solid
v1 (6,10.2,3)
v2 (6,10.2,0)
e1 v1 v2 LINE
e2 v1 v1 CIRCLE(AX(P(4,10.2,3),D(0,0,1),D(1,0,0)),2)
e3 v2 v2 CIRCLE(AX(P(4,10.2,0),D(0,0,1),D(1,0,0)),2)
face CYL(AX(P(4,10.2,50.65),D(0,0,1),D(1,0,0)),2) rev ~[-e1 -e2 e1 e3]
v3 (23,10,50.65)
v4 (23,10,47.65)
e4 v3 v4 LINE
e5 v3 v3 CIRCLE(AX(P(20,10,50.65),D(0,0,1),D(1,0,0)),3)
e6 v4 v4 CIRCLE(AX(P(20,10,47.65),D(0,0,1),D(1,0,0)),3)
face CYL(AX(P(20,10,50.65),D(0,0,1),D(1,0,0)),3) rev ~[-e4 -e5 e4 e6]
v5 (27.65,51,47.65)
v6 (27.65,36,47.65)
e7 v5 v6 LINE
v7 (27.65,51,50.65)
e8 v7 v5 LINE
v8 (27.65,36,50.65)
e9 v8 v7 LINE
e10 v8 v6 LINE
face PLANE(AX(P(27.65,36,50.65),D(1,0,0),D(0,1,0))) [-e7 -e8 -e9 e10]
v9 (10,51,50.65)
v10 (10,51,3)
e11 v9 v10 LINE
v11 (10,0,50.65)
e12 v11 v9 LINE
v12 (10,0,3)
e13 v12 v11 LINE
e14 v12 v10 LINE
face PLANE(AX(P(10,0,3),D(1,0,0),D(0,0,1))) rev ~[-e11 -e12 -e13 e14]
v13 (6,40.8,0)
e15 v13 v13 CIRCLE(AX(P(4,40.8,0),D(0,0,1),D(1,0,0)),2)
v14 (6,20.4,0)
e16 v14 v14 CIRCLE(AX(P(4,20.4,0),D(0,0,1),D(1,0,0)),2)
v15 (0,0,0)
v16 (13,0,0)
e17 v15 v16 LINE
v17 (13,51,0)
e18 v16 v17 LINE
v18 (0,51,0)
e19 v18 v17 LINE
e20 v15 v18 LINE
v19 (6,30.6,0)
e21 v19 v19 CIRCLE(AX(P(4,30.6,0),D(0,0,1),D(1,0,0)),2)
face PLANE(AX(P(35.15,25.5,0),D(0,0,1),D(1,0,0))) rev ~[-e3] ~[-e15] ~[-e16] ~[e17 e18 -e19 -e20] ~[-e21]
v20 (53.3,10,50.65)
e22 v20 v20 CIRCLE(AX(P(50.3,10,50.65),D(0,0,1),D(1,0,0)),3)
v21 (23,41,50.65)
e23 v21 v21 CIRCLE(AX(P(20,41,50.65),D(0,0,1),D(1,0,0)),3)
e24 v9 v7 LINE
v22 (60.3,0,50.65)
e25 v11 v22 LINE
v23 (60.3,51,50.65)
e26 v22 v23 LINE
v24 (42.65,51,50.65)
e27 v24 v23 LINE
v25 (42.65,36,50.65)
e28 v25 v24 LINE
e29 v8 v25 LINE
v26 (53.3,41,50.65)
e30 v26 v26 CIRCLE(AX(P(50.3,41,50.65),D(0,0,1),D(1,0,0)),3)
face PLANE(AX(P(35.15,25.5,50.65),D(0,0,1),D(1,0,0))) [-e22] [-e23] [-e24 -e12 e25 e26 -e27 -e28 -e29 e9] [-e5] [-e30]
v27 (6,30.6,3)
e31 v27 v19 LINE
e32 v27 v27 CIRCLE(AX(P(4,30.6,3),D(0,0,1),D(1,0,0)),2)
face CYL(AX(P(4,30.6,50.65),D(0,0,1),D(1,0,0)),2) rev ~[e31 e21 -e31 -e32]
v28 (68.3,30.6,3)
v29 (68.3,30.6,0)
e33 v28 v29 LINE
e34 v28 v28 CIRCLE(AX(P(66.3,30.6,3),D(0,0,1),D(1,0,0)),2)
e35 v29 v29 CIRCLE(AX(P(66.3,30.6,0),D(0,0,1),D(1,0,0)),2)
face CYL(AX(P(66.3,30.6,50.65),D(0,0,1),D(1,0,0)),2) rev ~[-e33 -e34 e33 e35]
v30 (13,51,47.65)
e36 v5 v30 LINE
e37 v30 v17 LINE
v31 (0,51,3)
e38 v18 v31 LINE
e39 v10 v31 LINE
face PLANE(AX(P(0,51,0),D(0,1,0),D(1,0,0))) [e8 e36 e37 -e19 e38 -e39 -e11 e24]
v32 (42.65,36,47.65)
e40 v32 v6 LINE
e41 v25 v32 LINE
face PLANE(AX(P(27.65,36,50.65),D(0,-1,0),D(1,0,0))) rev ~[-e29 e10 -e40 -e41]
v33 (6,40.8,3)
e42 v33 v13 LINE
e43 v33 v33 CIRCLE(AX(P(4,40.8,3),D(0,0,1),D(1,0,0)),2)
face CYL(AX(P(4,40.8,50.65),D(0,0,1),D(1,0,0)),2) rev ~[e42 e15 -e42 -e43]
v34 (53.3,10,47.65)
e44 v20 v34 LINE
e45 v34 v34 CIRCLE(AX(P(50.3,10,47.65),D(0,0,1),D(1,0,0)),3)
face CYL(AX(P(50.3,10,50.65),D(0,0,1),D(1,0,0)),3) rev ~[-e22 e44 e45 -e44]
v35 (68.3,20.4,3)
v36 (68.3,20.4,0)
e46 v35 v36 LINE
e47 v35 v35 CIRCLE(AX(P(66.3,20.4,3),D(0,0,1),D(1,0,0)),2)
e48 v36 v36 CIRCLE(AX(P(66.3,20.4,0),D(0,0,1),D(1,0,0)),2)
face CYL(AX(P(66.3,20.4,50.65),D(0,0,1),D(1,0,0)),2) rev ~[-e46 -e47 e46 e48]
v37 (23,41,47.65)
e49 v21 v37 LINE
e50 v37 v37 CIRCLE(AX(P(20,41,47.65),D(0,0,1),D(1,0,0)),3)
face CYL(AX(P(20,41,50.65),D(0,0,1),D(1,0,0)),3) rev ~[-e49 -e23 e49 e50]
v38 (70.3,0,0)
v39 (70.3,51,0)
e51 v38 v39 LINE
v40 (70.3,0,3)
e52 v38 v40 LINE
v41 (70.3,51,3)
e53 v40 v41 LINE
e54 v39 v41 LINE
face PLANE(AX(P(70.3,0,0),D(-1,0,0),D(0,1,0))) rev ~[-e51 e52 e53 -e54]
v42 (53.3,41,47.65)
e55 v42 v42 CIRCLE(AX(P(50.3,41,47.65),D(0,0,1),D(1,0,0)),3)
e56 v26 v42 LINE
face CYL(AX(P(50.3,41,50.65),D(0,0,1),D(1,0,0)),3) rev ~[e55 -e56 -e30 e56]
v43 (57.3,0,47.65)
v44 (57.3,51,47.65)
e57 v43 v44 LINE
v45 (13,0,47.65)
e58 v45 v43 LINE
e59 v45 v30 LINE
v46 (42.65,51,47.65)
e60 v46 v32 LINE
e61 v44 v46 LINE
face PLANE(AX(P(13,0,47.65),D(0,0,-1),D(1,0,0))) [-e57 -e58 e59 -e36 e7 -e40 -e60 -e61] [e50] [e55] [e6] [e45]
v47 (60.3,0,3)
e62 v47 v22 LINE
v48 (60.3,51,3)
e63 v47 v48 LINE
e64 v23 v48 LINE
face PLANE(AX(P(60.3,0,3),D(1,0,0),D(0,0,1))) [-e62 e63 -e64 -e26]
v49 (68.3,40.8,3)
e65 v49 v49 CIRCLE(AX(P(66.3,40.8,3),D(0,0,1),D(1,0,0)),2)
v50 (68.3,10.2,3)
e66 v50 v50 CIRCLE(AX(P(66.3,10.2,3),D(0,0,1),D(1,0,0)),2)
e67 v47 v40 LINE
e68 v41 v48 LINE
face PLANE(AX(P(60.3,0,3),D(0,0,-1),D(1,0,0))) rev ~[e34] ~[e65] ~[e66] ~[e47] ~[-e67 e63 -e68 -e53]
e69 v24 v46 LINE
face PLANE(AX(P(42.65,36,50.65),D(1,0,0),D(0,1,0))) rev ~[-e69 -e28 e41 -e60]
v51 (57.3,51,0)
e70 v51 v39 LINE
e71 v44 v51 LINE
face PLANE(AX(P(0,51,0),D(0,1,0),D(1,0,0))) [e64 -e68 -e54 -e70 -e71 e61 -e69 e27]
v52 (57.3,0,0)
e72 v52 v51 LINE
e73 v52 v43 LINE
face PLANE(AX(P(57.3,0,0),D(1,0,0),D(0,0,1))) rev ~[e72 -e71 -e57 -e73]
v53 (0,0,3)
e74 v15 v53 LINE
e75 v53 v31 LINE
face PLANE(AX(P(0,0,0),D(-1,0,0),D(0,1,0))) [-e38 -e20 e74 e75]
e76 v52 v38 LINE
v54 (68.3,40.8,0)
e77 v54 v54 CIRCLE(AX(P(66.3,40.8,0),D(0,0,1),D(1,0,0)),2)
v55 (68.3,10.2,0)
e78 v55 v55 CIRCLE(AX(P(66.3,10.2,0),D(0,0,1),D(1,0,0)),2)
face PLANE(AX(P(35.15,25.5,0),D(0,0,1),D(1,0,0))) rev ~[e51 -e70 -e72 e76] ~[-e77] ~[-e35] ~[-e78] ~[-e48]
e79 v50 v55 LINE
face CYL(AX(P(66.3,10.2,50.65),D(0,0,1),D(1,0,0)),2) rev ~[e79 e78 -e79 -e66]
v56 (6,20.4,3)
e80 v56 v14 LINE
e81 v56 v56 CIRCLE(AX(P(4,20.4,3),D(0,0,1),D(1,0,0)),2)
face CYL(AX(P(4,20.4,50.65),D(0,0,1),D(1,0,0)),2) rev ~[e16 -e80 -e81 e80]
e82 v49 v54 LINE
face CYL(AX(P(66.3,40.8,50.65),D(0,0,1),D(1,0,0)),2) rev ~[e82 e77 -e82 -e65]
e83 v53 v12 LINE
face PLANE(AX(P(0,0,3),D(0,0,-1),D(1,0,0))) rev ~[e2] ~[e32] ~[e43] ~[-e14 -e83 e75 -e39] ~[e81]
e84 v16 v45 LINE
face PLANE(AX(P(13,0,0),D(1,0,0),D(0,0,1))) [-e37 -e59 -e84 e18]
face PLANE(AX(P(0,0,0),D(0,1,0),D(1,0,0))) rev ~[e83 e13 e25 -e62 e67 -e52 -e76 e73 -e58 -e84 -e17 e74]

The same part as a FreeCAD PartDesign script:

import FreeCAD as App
import Part
import Sketcher
from FreeCAD import Vector


def add_polygon(sketch, points):
    """Adds a closed chain of lines whose ends are joined by coincident constraints."""
    first, n = sketch.GeometryCount, len(points)
    for a, b in zip(points, points[1:] + points[:1]):
        sketch.addGeometry(Part.LineSegment(App.Vector(*a, 0), App.Vector(*b, 0)), False)
    for i in range(n):
        sketch.addConstraint(Sketcher.Constraint("Coincident", first + i, 2, first + (i + 1) % n, 1))

doc = App.newDocument("Part")
body = doc.addObject("PartDesign::Body", "Body")

sketch1 = doc.addObject("Sketcher::SketchObject", "Sketch")
body.addObject(sketch1)
sketch1.AttachmentSupport = (doc.XY_Plane, [""])
sketch1.MapMode = "FlatFace"
add_polygon(sketch1, [(0, 51), (0, 0), (70, 0), (70, 51)])
sketch1.addConstraint([
    Sketcher.Constraint("Vertical", 0),
    Sketcher.Constraint("Horizontal", 1),
    Sketcher.Constraint("Vertical", 2),
    Sketcher.Constraint("Horizontal", 3),
    Sketcher.Constraint("Coincident", 0, 2, -1, 1),
    Sketcher.Constraint("DistanceY", 0, 2, 0, 1, 51.0),
    Sketcher.Constraint("DistanceX", 1, 1, 1, 2, 70.3),
])
pad1 = doc.addObject("PartDesign::Pad", "Pad")
body.addObject(pad1)
pad1.Profile = sketch1
pad1.Length = 50.65

sketch2 = doc.addObject("Sketcher::SketchObject", "Sketch001")
body.addObject(sketch2)
sketch2.AttachmentSupport = (doc.XZ_Plane, [""])
sketch2.MapMode = "FlatFace"
add_polygon(sketch2, [(13, 48), (13, 0), (57, 0), (57, 48)])
add_polygon(sketch2, [(0, 51), (0, 3), (10, 3), (10, 51)])
add_polygon(sketch2, [(60, 51), (60, 3), (70, 3), (70, 51)])
sketch2.addConstraint([
    Sketcher.Constraint("Vertical", 0),
    Sketcher.Constraint("Horizontal", 1),
    Sketcher.Constraint("Vertical", 2),
    Sketcher.Constraint("Horizontal", 3),
    Sketcher.Constraint("Vertical", 4),
    Sketcher.Constraint("Horizontal", 5),
    Sketcher.Constraint("Vertical", 6),
    Sketcher.Constraint("Horizontal", 7),
    Sketcher.Constraint("Vertical", 8),
    Sketcher.Constraint("Horizontal", 9),
    Sketcher.Constraint("Vertical", 10),
    Sketcher.Constraint("Horizontal", 11),
    Sketcher.Constraint("PointOnObject", 0, 2, -1),
    Sketcher.Constraint("PointOnObject", 4, 2, -2),
    Sketcher.Constraint("Horizontal", 5, 2, 8, 2),
    Sketcher.Constraint("Horizontal", 7, 2, 10, 2),
    Sketcher.Constraint("Equal", 7, 9),
    Sketcher.Constraint("Equal", 2, 4),
    Sketcher.Constraint("DistanceX", 5, 1, 5, 2, 10.0),
    Sketcher.Constraint("DistanceX", 1, 1, 1, 2, 44.3),
    Sketcher.Constraint("DistanceX", -1, 1, 0, 2, 13.0),
    Sketcher.Constraint("DistanceY", -1, 1, 4, 2, 3.0),
    Sketcher.Constraint("DistanceX", 1, 2, 8, 2, 3.0),
    Sketcher.Constraint("DistanceY", 0, 2, 0, 1, 47.65),
])
pocket1 = doc.addObject("PartDesign::Pocket", "Pocket")
body.addObject(pocket1)
pocket1.Profile = sketch2
pocket1.Type = "ThroughAll"

sketch3 = doc.addObject("Sketcher::SketchObject", "Sketch002")
body.addObject(sketch3)
sketch3.AttachmentSupport = (doc.XY_Plane, [""])
sketch3.MapMode = "FlatFace"
sketch3.AttachmentOffset = App.Placement(Vector(0, 0, 50.65), App.Rotation())
sketch3.addGeometry(Part.Circle(Vector(20, 41, 0), Vector(0, 0, 1), 3), False)
sketch3.addGeometry(Part.Circle(Vector(50.3, 41, 0), Vector(0, 0, 1), 3), False)
sketch3.addGeometry(Part.Circle(Vector(20, 10, 0), Vector(0, 0, 1), 3), False)
sketch3.addGeometry(Part.Circle(Vector(50.3, 10, 0), Vector(0, 0, 1), 3), False)
sketch3.addGeometry(Part.Circle(Vector(4, 40.8, 0), Vector(0, 0, 1), 2), False)
sketch3.addGeometry(Part.Circle(Vector(4, 30.6, 0), Vector(0, 0, 1), 2), False)
sketch3.addGeometry(Part.Circle(Vector(4, 20.4, 0), Vector(0, 0, 1), 2), False)
sketch3.addGeometry(Part.Circle(Vector(4, 10.2, 0), Vector(0, 0, 1), 2), False)
sketch3.addGeometry(Part.Circle(Vector(66.3, 40.8, 0), Vector(0, 0, 1), 2), False)
sketch3.addGeometry(Part.Circle(Vector(66.3, 30.6, 0), Vector(0, 0, 1), 2), False)
sketch3.addGeometry(Part.Circle(Vector(66.3, 20.4, 0), Vector(0, 0, 1), 2), False)
sketch3.addGeometry(Part.Circle(Vector(66.3, 10.2, 0), Vector(0, 0, 1), 2), False)
add_polygon(sketch3, [(27.6, 51), (27.6, 36), (42.6, 36), (42.6, 51)])
sketch3.addConstraint([
    Sketcher.Constraint("Vertical", 12),
    Sketcher.Constraint("Horizontal", 13),
    Sketcher.Constraint("Vertical", 14),
    Sketcher.Constraint("Horizontal", 15),
    Sketcher.Constraint("Equal", 0, 1),
    Sketcher.Constraint("Equal", 1, 2),
    Sketcher.Constraint("Equal", 2, 3),
    Sketcher.Constraint("Equal", 4, 5),
    Sketcher.Constraint("Equal", 5, 6),
    Sketcher.Constraint("Equal", 6, 7),
    Sketcher.Constraint("Equal", 7, 8),
    Sketcher.Constraint("Equal", 8, 9),
    Sketcher.Constraint("Equal", 9, 10),
    Sketcher.Constraint("Equal", 10, 11),
    Sketcher.Constraint("Horizontal", 0, 3, 1, 3),
    Sketcher.Constraint("Horizontal", 2, 3, 3, 3),
    Sketcher.Constraint("Horizontal", 4, 3, 8, 3),
    Sketcher.Constraint("Horizontal", 5, 3, 9, 3),
    Sketcher.Constraint("Horizontal", 6, 3, 10, 3),
    Sketcher.Constraint("Horizontal", 7, 3, 11, 3),
    Sketcher.Constraint("Vertical", 0, 3, 2, 3),
    Sketcher.Constraint("Vertical", 1, 3, 3, 3),
    Sketcher.Constraint("Vertical", 4, 3, 5, 3),
    Sketcher.Constraint("Vertical", 5, 3, 6, 3),
    Sketcher.Constraint("Vertical", 6, 3, 7, 3),
    Sketcher.Constraint("Vertical", 8, 3, 9, 3),
    Sketcher.Constraint("Vertical", 9, 3, 10, 3),
    Sketcher.Constraint("Vertical", 10, 3, 11, 3),
    Sketcher.Constraint("Equal", 15, 12),
    Sketcher.Constraint("Diameter", 0, 6.0),
    Sketcher.Constraint("Diameter", 4, 4.0),
    Sketcher.Constraint("DistanceX", 13, 1, 13, 2, 15.0),
    Sketcher.Constraint("DistanceX", -1, 1, 0, 3, 20.0),
    Sketcher.Constraint("DistanceY", -1, 1, 0, 3, 41.0),
    Sketcher.Constraint("DistanceY", -1, 1, 2, 3, 10.0),
    Sketcher.Constraint("DistanceX", -1, 1, 4, 3, 4.0),
    Sketcher.Constraint("DistanceY", -1, 1, 12, 2, 36.0),
    Sketcher.Constraint("DistanceX", 1, 3, 8, 3, 16.0),
    Sketcher.Constraint("DistanceX", -1, 1, 1, 3, 50.3),
    Sketcher.Constraint("DistanceY", -1, 1, 4, 3, 40.8),
    Sketcher.Constraint("DistanceY", -1, 1, 5, 3, 30.6),
    Sketcher.Constraint("DistanceY", -1, 1, 6, 3, 20.4),
    Sketcher.Constraint("DistanceY", -1, 1, 7, 3, 10.2),
    Sketcher.Constraint("DistanceX", -1, 1, 12, 2, 27.65),
])
pocket2 = doc.addObject("PartDesign::Pocket", "Pocket001")
body.addObject(pocket2)
pocket2.Profile = sketch3
pocket2.Type = "ThroughAll"

doc.recompute()
